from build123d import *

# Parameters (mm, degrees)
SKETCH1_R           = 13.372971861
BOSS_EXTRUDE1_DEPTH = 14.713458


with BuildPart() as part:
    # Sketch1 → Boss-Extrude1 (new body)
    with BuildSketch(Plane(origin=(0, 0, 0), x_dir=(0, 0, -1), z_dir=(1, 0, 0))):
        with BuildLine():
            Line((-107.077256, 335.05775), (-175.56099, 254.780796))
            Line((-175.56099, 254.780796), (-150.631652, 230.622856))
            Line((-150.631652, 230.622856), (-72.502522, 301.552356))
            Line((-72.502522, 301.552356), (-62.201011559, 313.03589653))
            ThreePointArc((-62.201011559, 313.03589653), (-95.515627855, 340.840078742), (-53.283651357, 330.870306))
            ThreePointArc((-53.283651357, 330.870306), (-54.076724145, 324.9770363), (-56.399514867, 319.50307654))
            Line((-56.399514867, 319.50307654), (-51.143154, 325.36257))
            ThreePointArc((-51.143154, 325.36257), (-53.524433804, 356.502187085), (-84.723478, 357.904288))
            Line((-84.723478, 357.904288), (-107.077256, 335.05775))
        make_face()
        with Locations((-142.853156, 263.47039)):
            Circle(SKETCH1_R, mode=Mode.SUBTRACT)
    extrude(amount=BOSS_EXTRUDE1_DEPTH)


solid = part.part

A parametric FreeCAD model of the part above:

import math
import FreeCAD as App
import Part
import Sketcher
Q = App.Units.Quantity

doc = App.newDocument("Part")
params = doc.addObject("Spreadsheet::Sheet", "Params")
for row, (alias, value) in enumerate([
    ("pad1_length", "14.713458 mm"),
], start=1):
    params.set(f"A{row}", alias)
    params.set(f"B{row}", "=" + value)
    params.setAlias(f"B{row}", alias)

body = doc.addObject("PartDesign::Body", "Body")

# Sketch on YZ plane
sketch1 = doc.addObject("Sketcher::SketchObject", "Sketch")
body.addObject(sketch1)
sketch1.AttachmentSupport = (doc.YZ_Plane, [""])
sketch1.MapMode = "FlatFace"
sketch1.addGeometry(Part.LineSegment(App.Vector(335.05775, 107.077256, 0), App.Vector(254.780796, 175.56099, 0)), False)
sketch1.addGeometry(Part.LineSegment(App.Vector(254.780796, 175.56099, 0), App.Vector(230.622856, 150.631652, 0)), False)
sketch1.addGeometry(Part.LineSegment(App.Vector(230.622856, 150.631652, 0), App.Vector(301.552356, 72.502522, 0)), False)
sketch1.addGeometry(Part.LineSegment(App.Vector(301.552356, 72.502522, 0), App.Vector(313.035897, 62.201012, 0)), False)
sketch1.addGeometry(Part.ArcOfCircle(Part.Circle(App.Vector(330.870306, 75.57643, 0), App.Vector(0, 0, 1), 22.292779), math.radians(-90), math.radians(216.869099)), False)
sketch1.addGeometry(Part.ArcOfCircle(Part.Circle(App.Vector(330.870306, 75.57643, 0), App.Vector(0, 0, 1), 22.292779), math.radians(-120.657592), math.radians(-90)), False)
sketch1.addGeometry(Part.LineSegment(App.Vector(319.503077, 56.399515, 0), App.Vector(325.36257, 51.143154, 0)), False)
sketch1.addGeometry(Part.ArcOfCircle(Part.Circle(App.Vector(339.587879, 69.915599, 0), App.Vector(0, 0, 1), 23.553431), math.radians(-127.153977), math.radians(38.953766)), False)
sketch1.addGeometry(Part.LineSegment(App.Vector(357.904288, 84.723478, 0), App.Vector(335.05775, 107.077256, 0)), False)
sketch1.addGeometry(Part.Circle(App.Vector(263.47039, 142.853156, 0), App.Vector(0, 0, 1), 13.372972), False)
sketch1.addConstraint(Sketcher.Constraint("Coincident", 0, 2, 1, 1))
sketch1.addConstraint(Sketcher.Constraint("Coincident", 1, 2, 2, 1))
sketch1.addConstraint(Sketcher.Constraint("Coincident", 2, 2, 3, 1))
sketch1.addConstraint(Sketcher.Constraint("Coincident", 3, 2, 4, 2))
sketch1.addConstraint(Sketcher.Constraint("Tangent", 4, 1, 5, 2))
sketch1.addConstraint(Sketcher.Constraint("Coincident", 5, 1, 6, 1))
sketch1.addConstraint(Sketcher.Constraint("Coincident", 6, 2, 7, 1))
sketch1.addConstraint(Sketcher.Constraint("Coincident", 7, 2, 8, 1))
sketch1.addConstraint(Sketcher.Constraint("Coincident", 8, 2, 0, 1))
sketch1.addConstraint(Sketcher.Constraint("Equal", 4, 5))
sketch1.addConstraint(Sketcher.Constraint("Parallel", 3, 6))
sketch1.addConstraint(Sketcher.Constraint("Vertical", 5, 3, 4, 1))
sketch1.addConstraint(Sketcher.Constraint("Radius", 4, Q("22.292779 mm")))
sketch1.addConstraint(Sketcher.Constraint("Radius", 7, Q("23.553431 mm")))
sketch1.addConstraint(Sketcher.Constraint("Diameter", 9, Q("26.745944 mm")))
sketch1.addConstraint(Sketcher.Constraint("DistanceY", -1, 1, 7, 3, Q("69.915599 mm")))
sketch1.addConstraint(Sketcher.Constraint("DistanceX", 1, 2, 2, 2, Q("70.9295 mm")))
sketch1.addConstraint(Sketcher.Constraint("Distance", 0, Q("105.519719 mm")))
sketch1.addConstraint(Sketcher.Constraint("Distance", 8, Q("31.963349 mm")))
sketch1.addConstraint(Sketcher.Constraint("DistanceY", -1, 1, 4, 3, Q("75.57643 mm")))
sketch1.addConstraint(Sketcher.Constraint("DistanceX", -1, 1, 7, 3, Q("339.587879 mm")))
sketch1.addConstraint(Sketcher.Constraint("DistanceX", -1, 1, 9, 3, Q("263.47039 mm")))
sketch1.addConstraint(Sketcher.Constraint("DistanceY", -1, 1, 0, 2, Q("175.56099 mm")))
sketch1.addConstraint(Sketcher.Constraint("DistanceY", -1, 1, 1, 2, Q("150.631652 mm")))
sketch1.addConstraint(Sketcher.Constraint("DistanceY", -1, 1, 2, 2, Q("72.502522 mm")))
sketch1.addConstraint(Sketcher.Constraint("DistanceY", -1, 1, 3, 2, Q("62.201012 mm")))
sketch1.addConstraint(Sketcher.Constraint("DistanceX", -1, 1, 6, 2, Q("325.36257 mm")))
sketch1.addConstraint(Sketcher.Constraint("DistanceX", -1, 1, 8, 2, Q("335.05775 mm")))
sketch1.addConstraint(Sketcher.Constraint("DistanceX", 0, 2, 5, 3, Q("76.08951 mm")))
sketch1.addConstraint(Sketcher.Constraint("DistanceX", 1, 2, 0, 2, Q("24.15794 mm")))
sketch1.addConstraint(Sketcher.Constraint("DistanceX", 3, 2, 5, 1, Q("6.46718 mm")))
sketch1.addConstraint(Sketcher.Constraint("DistanceY", -1, 1, 9, 3, Q("142.853156 mm")))
pad1 = doc.addObject("PartDesign::Pad", "Pad")
body.addObject(pad1)
pad1.Profile = sketch1
pad1.setExpression("Length", "Params.pad1_length")

doc.recompute()
